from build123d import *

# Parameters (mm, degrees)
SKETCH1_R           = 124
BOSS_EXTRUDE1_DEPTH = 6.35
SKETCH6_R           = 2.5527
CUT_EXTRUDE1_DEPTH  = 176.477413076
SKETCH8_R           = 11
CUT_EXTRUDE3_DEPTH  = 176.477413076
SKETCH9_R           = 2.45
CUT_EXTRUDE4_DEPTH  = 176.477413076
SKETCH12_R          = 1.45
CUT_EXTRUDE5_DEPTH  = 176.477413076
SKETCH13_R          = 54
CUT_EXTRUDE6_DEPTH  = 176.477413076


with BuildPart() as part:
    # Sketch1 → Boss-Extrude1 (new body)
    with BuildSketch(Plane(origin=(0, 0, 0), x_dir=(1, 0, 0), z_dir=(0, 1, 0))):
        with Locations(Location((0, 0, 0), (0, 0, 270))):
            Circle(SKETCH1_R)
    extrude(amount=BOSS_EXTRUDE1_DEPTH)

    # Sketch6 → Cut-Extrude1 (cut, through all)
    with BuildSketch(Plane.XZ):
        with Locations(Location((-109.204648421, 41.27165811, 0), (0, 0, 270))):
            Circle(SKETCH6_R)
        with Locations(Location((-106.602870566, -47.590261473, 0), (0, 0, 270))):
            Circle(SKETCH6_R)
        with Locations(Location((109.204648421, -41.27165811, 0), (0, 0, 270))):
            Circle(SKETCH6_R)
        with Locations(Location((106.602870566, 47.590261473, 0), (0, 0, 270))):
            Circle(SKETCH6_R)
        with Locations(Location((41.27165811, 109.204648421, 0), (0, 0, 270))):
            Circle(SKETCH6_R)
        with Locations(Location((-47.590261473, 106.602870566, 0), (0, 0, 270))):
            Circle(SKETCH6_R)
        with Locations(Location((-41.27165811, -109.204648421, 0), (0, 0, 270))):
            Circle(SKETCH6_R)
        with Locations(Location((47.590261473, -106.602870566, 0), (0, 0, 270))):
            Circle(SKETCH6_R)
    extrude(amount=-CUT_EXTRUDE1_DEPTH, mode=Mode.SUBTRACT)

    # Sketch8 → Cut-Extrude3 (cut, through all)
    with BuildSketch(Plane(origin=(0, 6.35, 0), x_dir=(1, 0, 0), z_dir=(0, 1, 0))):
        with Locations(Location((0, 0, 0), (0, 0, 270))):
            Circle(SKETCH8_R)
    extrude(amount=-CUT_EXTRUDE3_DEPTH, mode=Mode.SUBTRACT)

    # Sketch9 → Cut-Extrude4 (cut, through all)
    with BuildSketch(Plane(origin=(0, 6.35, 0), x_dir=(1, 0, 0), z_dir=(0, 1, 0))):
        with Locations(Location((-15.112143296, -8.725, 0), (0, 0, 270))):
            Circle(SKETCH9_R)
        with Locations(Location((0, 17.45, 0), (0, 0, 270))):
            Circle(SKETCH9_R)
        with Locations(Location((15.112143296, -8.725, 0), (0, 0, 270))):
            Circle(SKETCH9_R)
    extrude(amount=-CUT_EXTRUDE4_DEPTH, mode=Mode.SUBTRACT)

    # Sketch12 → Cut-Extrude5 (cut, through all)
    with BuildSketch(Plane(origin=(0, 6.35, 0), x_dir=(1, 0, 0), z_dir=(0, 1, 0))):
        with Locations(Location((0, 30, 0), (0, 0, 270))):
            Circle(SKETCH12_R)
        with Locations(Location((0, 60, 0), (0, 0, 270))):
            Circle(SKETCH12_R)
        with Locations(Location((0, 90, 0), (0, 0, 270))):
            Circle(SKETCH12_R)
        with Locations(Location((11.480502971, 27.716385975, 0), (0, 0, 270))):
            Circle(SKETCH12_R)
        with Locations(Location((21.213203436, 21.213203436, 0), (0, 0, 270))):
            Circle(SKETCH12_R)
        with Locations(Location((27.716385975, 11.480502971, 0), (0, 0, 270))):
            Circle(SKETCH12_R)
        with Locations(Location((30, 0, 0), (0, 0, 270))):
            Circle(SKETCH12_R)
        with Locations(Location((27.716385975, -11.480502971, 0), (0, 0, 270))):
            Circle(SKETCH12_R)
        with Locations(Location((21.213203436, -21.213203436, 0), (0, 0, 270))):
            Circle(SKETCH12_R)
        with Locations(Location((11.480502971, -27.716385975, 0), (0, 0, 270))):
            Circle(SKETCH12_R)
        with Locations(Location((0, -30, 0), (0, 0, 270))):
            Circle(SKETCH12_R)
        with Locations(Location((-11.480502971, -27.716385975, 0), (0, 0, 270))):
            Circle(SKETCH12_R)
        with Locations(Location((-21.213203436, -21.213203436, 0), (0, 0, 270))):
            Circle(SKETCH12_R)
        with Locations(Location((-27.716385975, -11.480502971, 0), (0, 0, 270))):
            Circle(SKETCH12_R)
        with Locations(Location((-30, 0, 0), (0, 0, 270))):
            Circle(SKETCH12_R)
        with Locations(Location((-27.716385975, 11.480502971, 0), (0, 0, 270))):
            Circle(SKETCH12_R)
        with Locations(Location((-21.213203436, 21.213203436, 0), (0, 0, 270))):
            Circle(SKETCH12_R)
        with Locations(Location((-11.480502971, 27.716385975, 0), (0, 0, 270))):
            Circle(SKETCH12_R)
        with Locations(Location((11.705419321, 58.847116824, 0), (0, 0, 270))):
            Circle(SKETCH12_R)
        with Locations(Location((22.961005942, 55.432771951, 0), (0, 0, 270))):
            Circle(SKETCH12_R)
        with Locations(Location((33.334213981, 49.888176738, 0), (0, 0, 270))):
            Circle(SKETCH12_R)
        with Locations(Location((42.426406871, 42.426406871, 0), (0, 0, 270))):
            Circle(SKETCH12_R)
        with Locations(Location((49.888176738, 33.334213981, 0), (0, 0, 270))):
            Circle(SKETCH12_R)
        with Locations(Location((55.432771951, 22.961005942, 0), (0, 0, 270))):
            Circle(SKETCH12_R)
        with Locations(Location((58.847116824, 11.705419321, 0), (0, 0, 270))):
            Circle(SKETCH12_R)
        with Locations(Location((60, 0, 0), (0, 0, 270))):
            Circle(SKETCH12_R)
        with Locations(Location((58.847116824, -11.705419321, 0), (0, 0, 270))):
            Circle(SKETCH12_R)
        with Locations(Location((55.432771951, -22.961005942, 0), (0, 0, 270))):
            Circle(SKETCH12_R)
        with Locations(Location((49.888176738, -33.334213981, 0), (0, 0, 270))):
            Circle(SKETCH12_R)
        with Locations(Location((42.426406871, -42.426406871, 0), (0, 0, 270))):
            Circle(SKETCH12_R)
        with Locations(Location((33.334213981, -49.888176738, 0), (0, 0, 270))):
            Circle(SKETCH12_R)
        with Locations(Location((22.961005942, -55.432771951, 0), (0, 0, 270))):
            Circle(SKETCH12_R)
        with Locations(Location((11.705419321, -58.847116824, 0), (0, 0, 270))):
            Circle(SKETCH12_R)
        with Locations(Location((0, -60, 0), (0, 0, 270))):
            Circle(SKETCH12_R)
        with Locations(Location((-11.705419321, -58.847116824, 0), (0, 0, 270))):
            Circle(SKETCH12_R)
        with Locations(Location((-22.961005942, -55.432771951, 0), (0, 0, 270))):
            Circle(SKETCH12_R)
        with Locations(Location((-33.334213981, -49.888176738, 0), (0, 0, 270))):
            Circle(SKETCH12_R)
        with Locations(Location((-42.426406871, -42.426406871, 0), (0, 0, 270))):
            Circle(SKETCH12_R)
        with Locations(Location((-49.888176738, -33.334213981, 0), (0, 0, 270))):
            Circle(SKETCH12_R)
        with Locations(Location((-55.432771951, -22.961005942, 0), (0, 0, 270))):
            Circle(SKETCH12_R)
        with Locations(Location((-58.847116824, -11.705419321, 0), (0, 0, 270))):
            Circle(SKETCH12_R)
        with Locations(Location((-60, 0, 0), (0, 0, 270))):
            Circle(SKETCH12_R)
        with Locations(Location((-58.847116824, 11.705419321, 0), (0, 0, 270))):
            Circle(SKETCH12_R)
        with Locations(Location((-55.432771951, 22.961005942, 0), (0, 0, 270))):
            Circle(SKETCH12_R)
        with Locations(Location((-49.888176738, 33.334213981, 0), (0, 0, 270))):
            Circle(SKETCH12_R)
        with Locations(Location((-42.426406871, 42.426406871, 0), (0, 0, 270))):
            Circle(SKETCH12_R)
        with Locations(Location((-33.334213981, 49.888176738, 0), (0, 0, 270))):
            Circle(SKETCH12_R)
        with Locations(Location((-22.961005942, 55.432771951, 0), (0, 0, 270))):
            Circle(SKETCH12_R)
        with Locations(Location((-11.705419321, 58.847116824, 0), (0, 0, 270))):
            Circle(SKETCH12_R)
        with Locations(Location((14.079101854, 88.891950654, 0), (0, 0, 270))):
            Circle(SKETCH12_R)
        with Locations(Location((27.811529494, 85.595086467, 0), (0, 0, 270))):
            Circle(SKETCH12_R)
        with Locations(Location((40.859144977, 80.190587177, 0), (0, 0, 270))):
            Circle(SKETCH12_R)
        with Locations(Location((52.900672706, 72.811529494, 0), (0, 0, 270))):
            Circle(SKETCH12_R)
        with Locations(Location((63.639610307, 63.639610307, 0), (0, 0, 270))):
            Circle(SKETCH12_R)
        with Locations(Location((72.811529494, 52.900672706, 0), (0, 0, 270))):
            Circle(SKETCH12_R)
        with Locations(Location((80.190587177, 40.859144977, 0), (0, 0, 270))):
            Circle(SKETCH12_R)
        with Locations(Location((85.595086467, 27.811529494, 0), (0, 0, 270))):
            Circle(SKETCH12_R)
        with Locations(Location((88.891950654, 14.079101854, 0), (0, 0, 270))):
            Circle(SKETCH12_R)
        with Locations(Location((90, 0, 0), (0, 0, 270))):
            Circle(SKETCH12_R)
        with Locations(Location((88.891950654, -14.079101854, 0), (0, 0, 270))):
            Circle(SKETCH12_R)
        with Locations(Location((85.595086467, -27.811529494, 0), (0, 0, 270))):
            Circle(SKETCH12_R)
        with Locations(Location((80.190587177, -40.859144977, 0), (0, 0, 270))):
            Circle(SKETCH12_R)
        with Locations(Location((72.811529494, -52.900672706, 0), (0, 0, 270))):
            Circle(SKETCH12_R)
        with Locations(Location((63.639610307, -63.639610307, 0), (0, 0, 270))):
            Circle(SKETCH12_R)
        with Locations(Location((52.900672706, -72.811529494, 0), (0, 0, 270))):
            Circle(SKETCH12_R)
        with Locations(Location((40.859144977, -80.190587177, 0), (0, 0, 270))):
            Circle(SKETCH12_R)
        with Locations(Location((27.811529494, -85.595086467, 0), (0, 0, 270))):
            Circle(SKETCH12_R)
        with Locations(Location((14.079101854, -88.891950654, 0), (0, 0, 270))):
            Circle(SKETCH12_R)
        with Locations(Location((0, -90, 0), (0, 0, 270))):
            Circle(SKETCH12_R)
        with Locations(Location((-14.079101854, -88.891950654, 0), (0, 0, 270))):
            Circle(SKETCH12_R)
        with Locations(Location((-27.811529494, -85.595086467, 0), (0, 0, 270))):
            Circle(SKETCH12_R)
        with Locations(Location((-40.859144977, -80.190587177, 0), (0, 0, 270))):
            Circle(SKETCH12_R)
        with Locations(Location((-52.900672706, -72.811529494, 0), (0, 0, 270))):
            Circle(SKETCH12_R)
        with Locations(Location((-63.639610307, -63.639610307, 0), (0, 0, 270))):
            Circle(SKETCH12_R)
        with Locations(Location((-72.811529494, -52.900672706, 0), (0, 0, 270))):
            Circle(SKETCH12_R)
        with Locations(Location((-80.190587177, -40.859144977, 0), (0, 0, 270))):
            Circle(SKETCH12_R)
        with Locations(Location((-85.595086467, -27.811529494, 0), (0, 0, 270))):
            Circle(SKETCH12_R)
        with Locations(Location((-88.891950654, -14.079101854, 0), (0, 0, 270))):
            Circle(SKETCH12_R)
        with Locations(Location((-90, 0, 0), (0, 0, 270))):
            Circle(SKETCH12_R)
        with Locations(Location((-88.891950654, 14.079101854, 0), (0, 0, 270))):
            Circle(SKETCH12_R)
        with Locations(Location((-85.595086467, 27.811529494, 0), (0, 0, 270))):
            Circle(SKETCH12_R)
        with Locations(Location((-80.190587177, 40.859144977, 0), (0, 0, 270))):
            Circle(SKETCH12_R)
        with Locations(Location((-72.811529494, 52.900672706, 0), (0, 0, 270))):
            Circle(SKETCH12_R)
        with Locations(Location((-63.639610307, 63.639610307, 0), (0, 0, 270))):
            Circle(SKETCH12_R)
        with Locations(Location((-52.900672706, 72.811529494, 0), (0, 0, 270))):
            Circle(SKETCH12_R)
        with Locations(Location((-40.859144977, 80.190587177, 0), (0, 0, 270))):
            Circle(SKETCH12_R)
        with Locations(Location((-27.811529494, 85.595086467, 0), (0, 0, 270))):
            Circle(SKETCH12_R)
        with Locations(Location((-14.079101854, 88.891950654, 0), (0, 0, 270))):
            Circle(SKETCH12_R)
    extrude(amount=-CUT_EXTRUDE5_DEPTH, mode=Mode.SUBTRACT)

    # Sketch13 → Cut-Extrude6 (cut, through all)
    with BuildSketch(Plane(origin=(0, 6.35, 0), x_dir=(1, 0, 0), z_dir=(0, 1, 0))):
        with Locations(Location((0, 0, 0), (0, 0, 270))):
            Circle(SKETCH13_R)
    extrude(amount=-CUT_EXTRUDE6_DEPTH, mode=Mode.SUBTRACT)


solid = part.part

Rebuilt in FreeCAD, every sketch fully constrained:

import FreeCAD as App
import Part
import Sketcher
Q = App.Units.Quantity

doc = App.newDocument("Part")
body = doc.addObject("PartDesign::Body", "Body")

sketch1 = body.newObject("Sketcher::SketchObject", "Sketch")
sketch1.AttachmentSupport = (doc.getObject("XZ_Plane"), [""])
sketch1.MapMode = "FlatFace"
sketch1.addGeometry(Part.Circle(App.Vector(0, 0, 0), App.Vector(0, 0, 1), 124), False)
sketch1.addConstraint(Sketcher.Constraint("Coincident", 0, 3, -1, 1))
sketch1.addConstraint(Sketcher.Constraint("Diameter", 0, Q("248 mm")))
pad1 = body.newObject("PartDesign::Pad", "Pad")
pad1.Profile = sketch1
pad1.Length = 6.35
pad1.Reversed = True

sketch2 = body.newObject("Sketcher::SketchObject", "Sketch001")
sketch2.AttachmentSupport = (doc.getObject("XZ_Plane"), [""])
sketch2.MapMode = "FlatFace"
sketch2.addGeometry(Part.Circle(App.Vector(-109.2, 41.3, 0), App.Vector(0, 0, 1), 2.6), False)
sketch2.addGeometry(Part.Circle(App.Vector(-106.6, -47.6, 0), App.Vector(0, 0, 1), 2.6), False)
sketch2.addGeometry(Part.Circle(App.Vector(109.2, -41.3, 0), App.Vector(0, 0, 1), 2.6), False)
sketch2.addGeometry(Part.Circle(App.Vector(106.6, 47.6, 0), App.Vector(0, 0, 1), 2.6), False)
sketch2.addGeometry(Part.Circle(App.Vector(41.3, 109.2, 0), App.Vector(0, 0, 1), 2.6), False)
sketch2.addGeometry(Part.Circle(App.Vector(-47.6, 106.6, 0), App.Vector(0, 0, 1), 2.6), False)
sketch2.addGeometry(Part.Circle(App.Vector(-41.3, -109.2, 0), App.Vector(0, 0, 1), 2.6), False)
sketch2.addGeometry(Part.Circle(App.Vector(47.6, -106.6, 0), App.Vector(0, 0, 1), 2.6), False)
sketch2.addConstraint(Sketcher.Constraint("Equal", 0, 1))
sketch2.addConstraint(Sketcher.Constraint("Equal", 1, 2))
sketch2.addConstraint(Sketcher.Constraint("Equal", 2, 3))
sketch2.addConstraint(Sketcher.Constraint("Equal", 3, 4))
sketch2.addConstraint(Sketcher.Constraint("Equal", 4, 5))
sketch2.addConstraint(Sketcher.Constraint("Equal", 5, 6))
sketch2.addConstraint(Sketcher.Constraint("Equal", 6, 7))
sketch2.addConstraint(Sketcher.Constraint("Symmetric", 0, 3, 2, 3, -1, 1))
sketch2.addConstraint(Sketcher.Constraint("Symmetric", 1, 3, 3, 3, -1, 1))
sketch2.addConstraint(Sketcher.Constraint("Symmetric", 4, 3, 6, 3, -1, 1))
sketch2.addConstraint(Sketcher.Constraint("Symmetric", 5, 3, 7, 3, -1, 1))
sketch2.addConstraint(Sketcher.Constraint("Diameter", 0, Q("5.1054 mm")))
sketch2.addConstraint(Sketcher.Constraint("DistanceX", 0, 3, -1, 1, Q("109.204648 mm")))
sketch2.addConstraint(Sketcher.Constraint("DistanceY", -1, 1, 0, 3, Q("41.271658 mm")))
sketch2.addConstraint(Sketcher.Constraint("DistanceX", 1, 3, -1, 1, Q("106.602871 mm")))
sketch2.addConstraint(Sketcher.Constraint("DistanceY", 1, 3, -1, 1, Q("47.590261 mm")))
sketch2.addConstraint(Sketcher.Constraint("DistanceX", -1, 1, 4, 3, Q("41.271658 mm")))
sketch2.addConstraint(Sketcher.Constraint("DistanceY", -1, 1, 4, 3, Q("109.204648 mm")))
sketch2.addConstraint(Sketcher.Constraint("DistanceX", 5, 3, -1, 1, Q("47.590261 mm")))
sketch2.addConstraint(Sketcher.Constraint("DistanceY", -1, 1, 5, 3, Q("106.602871 mm")))
pocket1 = body.newObject("PartDesign::Pocket", "Pocket")
pocket1.Profile = sketch2
pocket1.Type = "ThroughAll"

sketch3 = body.newObject("Sketcher::SketchObject", "Sketch002")
sketch3.AttachmentSupport = (doc.getObject("XZ_Plane"), [""])
sketch3.MapMode = "FlatFace"
sketch3.AttachmentOffset = App.Placement(App.Vector(0, 0, -6.35), App.Rotation())
sketch3.addGeometry(Part.Circle(App.Vector(0, 0, 0), App.Vector(0, 0, 1), 11), False)
sketch3.addConstraint(Sketcher.Constraint("Coincident", 0, 3, -1, 1))
sketch3.addConstraint(Sketcher.Constraint("Diameter", 0, Q("22 mm")))
pocket2 = body.newObject("PartDesign::Pocket", "Pocket001")
pocket2.Profile = sketch3
pocket2.Type = "ThroughAll"
pocket2.Reversed = True

sketch4 = body.newObject("Sketcher::SketchObject", "Sketch003")
sketch4.AttachmentSupport = (doc.getObject("XZ_Plane"), [""])
sketch4.MapMode = "FlatFace"
sketch4.AttachmentOffset = App.Placement(App.Vector(0, 0, -6.35), App.Rotation())
sketch4.addGeometry(Part.Circle(App.Vector(-15.1, 8.7, 0), App.Vector(0, 0, 1), 2.5), False)
sketch4.addGeometry(Part.Circle(App.Vector(0, -17.4, 0), App.Vector(0, 0, 1), 2.5), False)
sketch4.addGeometry(Part.Circle(App.Vector(15.1, 8.7, 0), App.Vector(0, 0, 1), 2.5), False)
sketch4.addConstraint(Sketcher.Constraint("Equal", 0, 1))
sketch4.addConstraint(Sketcher.Constraint("Equal", 1, 2))
sketch4.addConstraint(Sketcher.Constraint("Symmetric", 0, 3, 2, 3, -2))
sketch4.addConstraint(Sketcher.Constraint("PointOnObject", 1, 3, -2))
sketch4.addConstraint(Sketcher.Constraint("Diameter", 0, Q("4.9 mm")))
sketch4.addConstraint(Sketcher.Constraint("DistanceY", 1, 3, -1, 1, Q("17.45 mm")))
sketch4.addConstraint(Sketcher.Constraint("DistanceY", -1, 1, 0, 3, Q("8.725 mm")))
sketch4.addConstraint(Sketcher.Constraint("DistanceX", 0, 3, -1, 1, Q("15.112143 mm")))
pocket3 = body.newObject("PartDesign::Pocket", "Pocket002")
pocket3.Profile = sketch4
pocket3.Type = "ThroughAll"
pocket3.Reversed = True

sketch5 = body.newObject("Sketcher::SketchObject", "Sketch004")
sketch5.AttachmentSupport = (doc.getObject("XZ_Plane"), [""])
sketch5.MapMode = "FlatFace"
sketch5.AttachmentOffset = App.Placement(App.Vector(0, 0, -6.35), App.Rotation())
sketch5.addGeometry(Part.Circle(App.Vector(0, -30, 0), App.Vector(0, 0, 1), 1.4), False)
sketch5.addGeometry(Part.Circle(App.Vector(0, -60, 0), App.Vector(0, 0, 1), 1.4), False)
sketch5.addGeometry(Part.Circle(App.Vector(0, -90, 0), App.Vector(0, 0, 1), 1.4), False)
sketch5.addGeometry(Part.Circle(App.Vector(11.5, -27.7, 0), App.Vector(0, 0, 1), 1.4), False)
sketch5.addGeometry(Part.Circle(App.Vector(21.2, -21.2, 0), App.Vector(0, 0, 1), 1.4), False)
sketch5.addGeometry(Part.Circle(App.Vector(27.7, -11.5, 0), App.Vector(0, 0, 1), 1.4), False)
sketch5.addGeometry(Part.Circle(App.Vector(30, 0, 0), App.Vector(0, 0, 1), 1.4), False)
sketch5.addGeometry(Part.Circle(App.Vector(27.7, 11.5, 0), App.Vector(0, 0, 1), 1.4), False)
sketch5.addGeometry(Part.Circle(App.Vector(21.2, 21.2, 0), App.Vector(0, 0, 1), 1.4), False)
sketch5.addGeometry(Part.Circle(App.Vector(11.5, 27.7, 0), App.Vector(0, 0, 1), 1.4), False)
sketch5.addGeometry(Part.Circle(App.Vector(0, 30, 0), App.Vector(0, 0, 1), 1.4), False)
sketch5.addGeometry(Part.Circle(App.Vector(-11.5, 27.7, 0), App.Vector(0, 0, 1), 1.4), False)
sketch5.addGeometry(Part.Circle(App.Vector(-21.2, 21.2, 0), App.Vector(0, 0, 1), 1.4), False)
sketch5.addGeometry(Part.Circle(App.Vector(-27.7, 11.5, 0), App.Vector(0, 0, 1), 1.4), False)
sketch5.addGeometry(Part.Circle(App.Vector(-30, 0, 0), App.Vector(0, 0, 1), 1.4), False)
sketch5.addGeometry(Part.Circle(App.Vector(-27.7, -11.5, 0), App.Vector(0, 0, 1), 1.4), False)
sketch5.addGeometry(Part.Circle(App.Vector(-21.2, -21.2, 0), App.Vector(0, 0, 1), 1.4), False)
sketch5.addGeometry(Part.Circle(App.Vector(-11.5, -27.7, 0), App.Vector(0, 0, 1), 1.4), False)
sketch5.addGeometry(Part.Circle(App.Vector(11.7, -58.8, 0), App.Vector(0, 0, 1), 1.4), False)
sketch5.addGeometry(Part.Circle(App.Vector(23, -55.4, 0), App.Vector(0, 0, 1), 1.4), False)
sketch5.addGeometry(Part.Circle(App.Vector(33.3, -49.9, 0), App.Vector(0, 0, 1), 1.4), False)
sketch5.addGeometry(Part.Circle(App.Vector(42.4, -42.4, 0), App.Vector(0, 0, 1), 1.4), False)
sketch5.addGeometry(Part.Circle(App.Vector(49.9, -33.3, 0), App.Vector(0, 0, 1), 1.4), False)
sketch5.addGeometry(Part.Circle(App.Vector(55.4, -23, 0), App.Vector(0, 0, 1), 1.4), False)
sketch5.addGeometry(Part.Circle(App.Vector(58.8, -11.7, 0), App.Vector(0, 0, 1), 1.4), False)
sketch5.addGeometry(Part.Circle(App.Vector(60, 0, 0), App.Vector(0, 0, 1), 1.4), False)
sketch5.addGeometry(Part.Circle(App.Vector(58.8, 11.7, 0), App.Vector(0, 0, 1), 1.4), False)
sketch5.addGeometry(Part.Circle(App.Vector(55.4, 23, 0), App.Vector(0, 0, 1), 1.4), False)
sketch5.addGeometry(Part.Circle(App.Vector(49.9, 33.3, 0), App.Vector(0, 0, 1), 1.4), False)
sketch5.addGeometry(Part.Circle(App.Vector(42.4, 42.4, 0), App.Vector(0, 0, 1), 1.4), False)
sketch5.addGeometry(Part.Circle(App.Vector(33.3, 49.9, 0), App.Vector(0, 0, 1), 1.4), False)
sketch5.addGeometry(Part.Circle(App.Vector(23, 55.4, 0), App.Vector(0, 0, 1), 1.4), False)
sketch5.addGeometry(Part.Circle(App.Vector(11.7, 58.8, 0), App.Vector(0, 0, 1), 1.4), False)
sketch5.addGeometry(Part.Circle(App.Vector(0, 60, 0), App.Vector(0, 0, 1), 1.4), False)
sketch5.addGeometry(Part.Circle(App.Vector(-11.7, 58.8, 0), App.Vector(0, 0, 1), 1.4), False)
sketch5.addGeometry(Part.Circle(App.Vector(-23, 55.4, 0), App.Vector(0, 0, 1), 1.4), False)
sketch5.addGeometry(Part.Circle(App.Vector(-33.3, 49.9, 0), App.Vector(0, 0, 1), 1.4), False)
sketch5.addGeometry(Part.Circle(App.Vector(-42.4, 42.4, 0), App.Vector(0, 0, 1), 1.4), False)
sketch5.addGeometry(Part.Circle(App.Vector(-49.9, 33.3, 0), App.Vector(0, 0, 1), 1.4), False)
sketch5.addGeometry(Part.Circle(App.Vector(-55.4, 23, 0), App.Vector(0, 0, 1), 1.4), False)
sketch5.addGeometry(Part.Circle(App.Vector(-58.8, 11.7, 0), App.Vector(0, 0, 1), 1.4), False)
sketch5.addGeometry(Part.Circle(App.Vector(-60, 0, 0), App.Vector(0, 0, 1), 1.4), False)
sketch5.addGeometry(Part.Circle(App.Vector(-58.8, -11.7, 0), App.Vector(0, 0, 1), 1.4), False)
sketch5.addGeometry(Part.Circle(App.Vector(-55.4, -23, 0), App.Vector(0, 0, 1), 1.4), False)
sketch5.addGeometry(Part.Circle(App.Vector(-49.9, -33.3, 0), App.Vector(0, 0, 1), 1.4), False)
sketch5.addGeometry(Part.Circle(App.Vector(-42.4, -42.4, 0), App.Vector(0, 0, 1), 1.4), False)
sketch5.addGeometry(Part.Circle(App.Vector(-33.3, -49.9, 0), App.Vector(0, 0, 1), 1.4), False)
sketch5.addGeometry(Part.Circle(App.Vector(-23, -55.4, 0), App.Vector(0, 0, 1), 1.4), False)
sketch5.addGeometry(Part.Circle(App.Vector(-11.7, -58.8, 0), App.Vector(0, 0, 1), 1.4), False)
sketch5.addGeometry(Part.Circle(App.Vector(14.1, -88.9, 0), App.Vector(0, 0, 1), 1.4), False)
sketch5.addGeometry(Part.Circle(App.Vector(27.8, -85.6, 0), App.Vector(0, 0, 1), 1.4), False)
sketch5.addGeometry(Part.Circle(App.Vector(40.9, -80.2, 0), App.Vector(0, 0, 1), 1.4), False)
sketch5.addGeometry(Part.Circle(App.Vector(52.9, -72.8, 0), App.Vector(0, 0, 1), 1.4), False)
sketch5.addGeometry(Part.Circle(App.Vector(63.6, -63.6, 0), App.Vector(0, 0, 1), 1.4), False)
sketch5.addGeometry(Part.Circle(App.Vector(72.8, -52.9, 0), App.Vector(0, 0, 1), 1.4), False)
sketch5.addGeometry(Part.Circle(App.Vector(80.2, -40.9, 0), App.Vector(0, 0, 1), 1.4), False)
sketch5.addGeometry(Part.Circle(App.Vector(85.6, -27.8, 0), App.Vector(0, 0, 1), 1.4), False)
sketch5.addGeometry(Part.Circle(App.Vector(88.9, -14.1, 0), App.Vector(0, 0, 1), 1.4), False)
sketch5.addGeometry(Part.Circle(App.Vector(90, 0, 0), App.Vector(0, 0, 1), 1.4), False)
sketch5.addGeometry(Part.Circle(App.Vector(88.9, 14.1, 0), App.Vector(0, 0, 1), 1.4), False)
sketch5.addGeometry(Part.Circle(App.Vector(85.6, 27.8, 0), App.Vector(0, 0, 1), 1.4), False)
sketch5.addGeometry(Part.Circle(App.Vector(80.2, 40.9, 0), App.Vector(0, 0, 1), 1.4), False)
sketch5.addGeometry(Part.Circle(App.Vector(72.8, 52.9, 0), App.Vector(0, 0, 1), 1.4), False)
sketch5.addGeometry(Part.Circle(App.Vector(63.6, 63.6, 0), App.Vector(0, 0, 1), 1.4), False)
sketch5.addGeometry(Part.Circle(App.Vector(52.9, 72.8, 0), App.Vector(0, 0, 1), 1.4), False)
sketch5.addGeometry(Part.Circle(App.Vector(40.9, 80.2, 0), App.Vector(0, 0, 1), 1.4), False)
sketch5.addGeometry(Part.Circle(App.Vector(27.8, 85.6, 0), App.Vector(0, 0, 1), 1.4), False)
sketch5.addGeometry(Part.Circle(App.Vector(14.1, 88.9, 0), App.Vector(0, 0, 1), 1.4), False)
sketch5.addGeometry(Part.Circle(App.Vector(0, 90, 0), App.Vector(0, 0, 1), 1.4), False)
sketch5.addGeometry(Part.Circle(App.Vector(-14.1, 88.9, 0), App.Vector(0, 0, 1), 1.4), False)
sketch5.addGeometry(Part.Circle(App.Vector(-27.8, 85.6, 0), App.Vector(0, 0, 1), 1.4), False)
sketch5.addGeometry(Part.Circle(App.Vector(-40.9, 80.2, 0), App.Vector(0, 0, 1), 1.4), False)
sketch5.addGeometry(Part.Circle(App.Vector(-52.9, 72.8, 0), App.Vector(0, 0, 1), 1.4), False)
sketch5.addGeometry(Part.Circle(App.Vector(-63.6, 63.6, 0), App.Vector(0, 0, 1), 1.4), False)
sketch5.addGeometry(Part.Circle(App.Vector(-72.8, 52.9, 0), App.Vector(0, 0, 1), 1.4), False)
sketch5.addGeometry(Part.Circle(App.Vector(-80.2, 40.9, 0), App.Vector(0, 0, 1), 1.4), False)
sketch5.addGeometry(Part.Circle(App.Vector(-85.6, 27.8, 0), App.Vector(0, 0, 1), 1.4), False)
sketch5.addGeometry(Part.Circle(App.Vector(-88.9, 14.1, 0), App.Vector(0, 0, 1), 1.4), False)
sketch5.addGeometry(Part.Circle(App.Vector(-90, 0, 0), App.Vector(0, 0, 1), 1.4), False)
sketch5.addGeometry(Part.Circle(App.Vector(-88.9, -14.1, 0), App.Vector(0, 0, 1), 1.4), False)
sketch5.addGeometry(Part.Circle(App.Vector(-85.6, -27.8, 0), App.Vector(0, 0, 1), 1.4), False)
sketch5.addGeometry(Part.Circle(App.Vector(-80.2, -40.9, 0), App.Vector(0, 0, 1), 1.4), False)
sketch5.addGeometry(Part.Circle(App.Vector(-72.8, -52.9, 0), App.Vector(0, 0, 1), 1.4), False)
sketch5.addGeometry(Part.Circle(App.Vector(-63.6, -63.6, 0), App.Vector(0, 0, 1), 1.4), False)
sketch5.addGeometry(Part.Circle(App.Vector(-52.9, -72.8, 0), App.Vector(0, 0, 1), 1.4), False)
sketch5.addGeometry(Part.Circle(App.Vector(-40.9, -80.2, 0), App.Vector(0, 0, 1), 1.4), False)
sketch5.addGeometry(Part.Circle(App.Vector(-27.8, -85.6, 0), App.Vector(0, 0, 1), 1.4), False)
sketch5.addGeometry(Part.Circle(App.Vector(-14.1, -88.9, 0), App.Vector(0, 0, 1), 1.4), False)
sketch5.addConstraint(Sketcher.Constraint("Equal", 0, 1))
sketch5.addConstraint(Sketcher.Constraint("Equal", 1, 2))
sketch5.addConstraint(Sketcher.Constraint("Equal", 2, 3))
sketch5.addConstraint(Sketcher.Constraint("Equal", 3, 4))
sketch5.addConstraint(Sketcher.Constraint("Equal", 4, 5))
sketch5.addConstraint(Sketcher.Constraint("Equal", 5, 6))
sketch5.addConstraint(Sketcher.Constraint("Equal", 6, 7))
sketch5.addConstraint(Sketcher.Constraint("Equal", 7, 8))
sketch5.addConstraint(Sketcher.Constraint("Equal", 8, 9))
sketch5.addConstraint(Sketcher.Constraint("Equal", 9, 10))
sketch5.addConstraint(Sketcher.Constraint("Equal", 10, 11))
sketch5.addConstraint(Sketcher.Constraint("Equal", 11, 12))
sketch5.addConstraint(Sketcher.Constraint("Equal", 12, 13))
sketch5.addConstraint(Sketcher.Constraint("Equal", 13, 14))
sketch5.addConstraint(Sketcher.Constraint("Equal", 14, 15))
sketch5.addConstraint(Sketcher.Constraint("Equal", 15, 16))
sketch5.addConstraint(Sketcher.Constraint("Equal", 16, 17))
sketch5.addConstraint(Sketcher.Constraint("Equal", 17, 18))
sketch5.addConstraint(Sketcher.Constraint("Equal", 18, 19))
sketch5.addConstraint(Sketcher.Constraint("Equal", 19, 20))
sketch5.addConstraint(Sketcher.Constraint("Equal", 20, 21))
sketch5.addConstraint(Sketcher.Constraint("Equal", 21, 22))
sketch5.addConstraint(Sketcher.Constraint("Equal", 22, 23))
sketch5.addConstraint(Sketcher.Constraint("Equal", 23, 24))
sketch5.addConstraint(Sketcher.Constraint("Equal", 24, 25))
sketch5.addConstraint(Sketcher.Constraint("Equal", 25, 26))
sketch5.addConstraint(Sketcher.Constraint("Equal", 26, 27))
sketch5.addConstraint(Sketcher.Constraint("Equal", 27, 28))
sketch5.addConstraint(Sketcher.Constraint("Equal", 28, 29))
sketch5.addConstraint(Sketcher.Constraint("Equal", 29, 30))
sketch5.addConstraint(Sketcher.Constraint("Equal", 30, 31))
sketch5.addConstraint(Sketcher.Constraint("Equal", 31, 32))
sketch5.addConstraint(Sketcher.Constraint("Equal", 32, 33))
sketch5.addConstraint(Sketcher.Constraint("Equal", 33, 34))
sketch5.addConstraint(Sketcher.Constraint("Equal", 34, 35))
sketch5.addConstraint(Sketcher.Constraint("Equal", 35, 36))
sketch5.addConstraint(Sketcher.Constraint("Equal", 36, 37))
sketch5.addConstraint(Sketcher.Constraint("Equal", 37, 38))
sketch5.addConstraint(Sketcher.Constraint("Equal", 38, 39))
sketch5.addConstraint(Sketcher.Constraint("Equal", 39, 40))
sketch5.addConstraint(Sketcher.Constraint("Equal", 40, 41))
sketch5.addConstraint(Sketcher.Constraint("Equal", 41, 42))
sketch5.addConstraint(Sketcher.Constraint("Equal", 42, 43))
sketch5.addConstraint(Sketcher.Constraint("Equal", 43, 44))
sketch5.addConstraint(Sketcher.Constraint("Equal", 44, 45))
sketch5.addConstraint(Sketcher.Constraint("Equal", 45, 46))
sketch5.addConstraint(Sketcher.Constraint("Equal", 46, 47))
sketch5.addConstraint(Sketcher.Constraint("Equal", 47, 48))
sketch5.addConstraint(Sketcher.Constraint("Equal", 48, 49))
sketch5.addConstraint(Sketcher.Constraint("Equal", 49, 50))
sketch5.addConstraint(Sketcher.Constraint("Equal", 50, 51))
sketch5.addConstraint(Sketcher.Constraint("Equal", 51, 52))
sketch5.addConstraint(Sketcher.Constraint("Equal", 52, 53))
sketch5.addConstraint(Sketcher.Constraint("Equal", 53, 54))
sketch5.addConstraint(Sketcher.Constraint("Equal", 54, 55))
sketch5.addConstraint(Sketcher.Constraint("Equal", 55, 56))
sketch5.addConstraint(Sketcher.Constraint("Equal", 56, 57))
sketch5.addConstraint(Sketcher.Constraint("Equal", 57, 58))
sketch5.addConstraint(Sketcher.Constraint("Equal", 58, 59))
sketch5.addConstraint(Sketcher.Constraint("Equal", 59, 60))
sketch5.addConstraint(Sketcher.Constraint("Equal", 60, 61))
sketch5.addConstraint(Sketcher.Constraint("Equal", 61, 62))
sketch5.addConstraint(Sketcher.Constraint("Equal", 62, 63))
sketch5.addConstraint(Sketcher.Constraint("Equal", 63, 64))
sketch5.addConstraint(Sketcher.Constraint("Equal", 64, 65))
sketch5.addConstraint(Sketcher.Constraint("Equal", 65, 66))
sketch5.addConstraint(Sketcher.Constraint("Equal", 66, 67))
sketch5.addConstraint(Sketcher.Constraint("Equal", 67, 68))
sketch5.addConstraint(Sketcher.Constraint("Equal", 68, 69))
sketch5.addConstraint(Sketcher.Constraint("Equal", 69, 70))
sketch5.addConstraint(Sketcher.Constraint("Equal", 70, 71))
sketch5.addConstraint(Sketcher.Constraint("Equal", 71, 72))
sketch5.addConstraint(Sketcher.Constraint("Equal", 72, 73))
sketch5.addConstraint(Sketcher.Constraint("Equal", 73, 74))
sketch5.addConstraint(Sketcher.Constraint("Equal", 74, 75))
sketch5.addConstraint(Sketcher.Constraint("Equal", 75, 76))
sketch5.addConstraint(Sketcher.Constraint("Equal", 76, 77))
sketch5.addConstraint(Sketcher.Constraint("Equal", 77, 78))
sketch5.addConstraint(Sketcher.Constraint("Equal", 78, 79))
sketch5.addConstraint(Sketcher.Constraint("Equal", 79, 80))
sketch5.addConstraint(Sketcher.Constraint("Equal", 80, 81))
sketch5.addConstraint(Sketcher.Constraint("Equal", 81, 82))
sketch5.addConstraint(Sketcher.Constraint("Equal", 82, 83))
sketch5.addConstraint(Sketcher.Constraint("Equal", 83, 84))
sketch5.addConstraint(Sketcher.Constraint("Equal", 84, 85))
sketch5.addConstraint(Sketcher.Constraint("Equal", 85, 86))
sketch5.addConstraint(Sketcher.Constraint("Equal", 86, 87))
sketch5.addConstraint(Sketcher.Constraint("Symmetric", 0, 3, 10, 3, -1, 1))
sketch5.addConstraint(Sketcher.Constraint("Symmetric", 3, 3, 11, 3, -1, 1))
sketch5.addConstraint(Sketcher.Constraint("Symmetric", 4, 3, 12, 3, -1, 1))
sketch5.addConstraint(Sketcher.Constraint("Symmetric", 5, 3, 13, 3, -1, 1))
sketch5.addConstraint(Sketcher.Constraint("Symmetric", 6, 3, 14, 3, -1, 1))
sketch5.addConstraint(Sketcher.Constraint("Symmetric", 7, 3, 15, 3, -1, 1))
sketch5.addConstraint(Sketcher.Constraint("Symmetric", 8, 3, 16, 3, -1, 1))
sketch5.addConstraint(Sketcher.Constraint("Symmetric", 9, 3, 17, 3, -1, 1))
sketch5.addConstraint(Sketcher.Constraint("Symmetric", 1, 3, 33, 3, -1, 1))
sketch5.addConstraint(Sketcher.Constraint("Symmetric", 18, 3, 34, 3, -1, 1))
sketch5.addConstraint(Sketcher.Constraint("Symmetric", 19, 3, 35, 3, -1, 1))
sketch5.addConstraint(Sketcher.Constraint("Symmetric", 20, 3, 36, 3, -1, 1))
sketch5.addConstraint(Sketcher.Constraint("Symmetric", 21, 3, 37, 3, -1, 1))
sketch5.addConstraint(Sketcher.Constraint("Symmetric", 22, 3, 38, 3, -1, 1))
sketch5.addConstraint(Sketcher.Constraint("Symmetric", 23, 3, 39, 3, -1, 1))
sketch5.addConstraint(Sketcher.Constraint("Symmetric", 24, 3, 40, 3, -1, 1))
sketch5.addConstraint(Sketcher.Constraint("Symmetric", 25, 3, 41, 3, -1, 1))
sketch5.addConstraint(Sketcher.Constraint("Symmetric", 26, 3, 42, 3, -1, 1))
sketch5.addConstraint(Sketcher.Constraint("Symmetric", 27, 3, 43, 3, -1, 1))
sketch5.addConstraint(Sketcher.Constraint("Symmetric", 28, 3, 44, 3, -1, 1))
sketch5.addConstraint(Sketcher.Constraint("Symmetric", 29, 3, 45, 3, -1, 1))
sketch5.addConstraint(Sketcher.Constraint("Symmetric", 30, 3, 46, 3, -1, 1))
sketch5.addConstraint(Sketcher.Constraint("Symmetric", 31, 3, 47, 3, -1, 1))
sketch5.addConstraint(Sketcher.Constraint("Symmetric", 32, 3, 48, 3, -1, 1))
sketch5.addConstraint(Sketcher.Constraint("Symmetric", 2, 3, 68, 3, -1, 1))
sketch5.addConstraint(Sketcher.Constraint("Symmetric", 49, 3, 69, 3, -1, 1))
sketch5.addConstraint(Sketcher.Constraint("Symmetric", 50, 3, 70, 3, -1, 1))
sketch5.addConstraint(Sketcher.Constraint("Symmetric", 51, 3, 71, 3, -1, 1))
sketch5.addConstraint(Sketcher.Constraint("Symmetric", 52, 3, 72, 3, -1, 1))
sketch5.addConstraint(Sketcher.Constraint("Symmetric", 53, 3, 73, 3, -1, 1))
sketch5.addConstraint(Sketcher.Constraint("Symmetric", 54, 3, 74, 3, -1, 1))
sketch5.addConstraint(Sketcher.Constraint("Symmetric", 55, 3, 75, 3, -1, 1))
sketch5.addConstraint(Sketcher.Constraint("Symmetric", 56, 3, 76, 3, -1, 1))
sketch5.addConstraint(Sketcher.Constraint("Symmetric", 57, 3, 77, 3, -1, 1))
sketch5.addConstraint(Sketcher.Constraint("Symmetric", 58, 3, 78, 3, -1, 1))
sketch5.addConstraint(Sketcher.Constraint("Symmetric", 59, 3, 79, 3, -1, 1))
sketch5.addConstraint(Sketcher.Constraint("Symmetric", 60, 3, 80, 3, -1, 1))
sketch5.addConstraint(Sketcher.Constraint("Symmetric", 61, 3, 81, 3, -1, 1))
sketch5.addConstraint(Sketcher.Constraint("Symmetric", 62, 3, 82, 3, -1, 1))
sketch5.addConstraint(Sketcher.Constraint("Symmetric", 63, 3, 83, 3, -1, 1))
sketch5.addConstraint(Sketcher.Constraint("Symmetric", 64, 3, 84, 3, -1, 1))
sketch5.addConstraint(Sketcher.Constraint("Symmetric", 65, 3, 85, 3, -1, 1))
sketch5.addConstraint(Sketcher.Constraint("Symmetric", 66, 3, 86, 3, -1, 1))
sketch5.addConstraint(Sketcher.Constraint("Symmetric", 67, 3, 87, 3, -1, 1))
sketch5.addConstraint(Sketcher.Constraint("Symmetric", 9, 3, 11, 3, -2))
sketch5.addConstraint(Sketcher.Constraint("Symmetric", 8, 3, 12, 3, -2))
sketch5.addConstraint(Sketcher.Constraint("Symmetric", 7, 3, 13, 3, -2))
sketch5.addConstraint(Sketcher.Constraint("Symmetric", 32, 3, 34, 3, -2))
sketch5.addConstraint(Sketcher.Constraint("Symmetric", 31, 3, 35, 3, -2))
sketch5.addConstraint(Sketcher.Constraint("Symmetric", 30, 3, 36, 3, -2))
sketch5.addConstraint(Sketcher.Constraint("Symmetric", 29, 3, 37, 3, -2))
sketch5.addConstraint(Sketcher.Constraint("Symmetric", 28, 3, 38, 3, -2))
sketch5.addConstraint(Sketcher.Constraint("Symmetric", 27, 3, 39, 3, -2))
sketch5.addConstraint(Sketcher.Constraint("Symmetric", 26, 3, 40, 3, -2))
sketch5.addConstraint(Sketcher.Constraint("Symmetric", 67, 3, 69, 3, -2))
sketch5.addConstraint(Sketcher.Constraint("Symmetric", 66, 3, 70, 3, -2))
sketch5.addConstraint(Sketcher.Constraint("Symmetric", 65, 3, 71, 3, -2))
sketch5.addConstraint(Sketcher.Constraint("Symmetric", 64, 3, 72, 3, -2))
sketch5.addConstraint(Sketcher.Constraint("Symmetric", 63, 3, 73, 3, -2))
sketch5.addConstraint(Sketcher.Constraint("Symmetric", 62, 3, 74, 3, -2))
sketch5.addConstraint(Sketcher.Constraint("Symmetric", 61, 3, 75, 3, -2))
sketch5.addConstraint(Sketcher.Constraint("Symmetric", 60, 3, 76, 3, -2))
sketch5.addConstraint(Sketcher.Constraint("Symmetric", 59, 3, 77, 3, -2))
sketch5.addConstraint(Sketcher.Constraint("PointOnObject", 0, 3, -2))
sketch5.addConstraint(Sketcher.Constraint("PointOnObject", 1, 3, -2))
sketch5.addConstraint(Sketcher.Constraint("PointOnObject", 2, 3, -2))
sketch5.addConstraint(Sketcher.Constraint("PointOnObject", 6, 3, -1))
sketch5.addConstraint(Sketcher.Constraint("PointOnObject", 25, 3, -1))
sketch5.addConstraint(Sketcher.Constraint("PointOnObject", 58, 3, -1))
sketch5.addConstraint(Sketcher.Constraint("Diameter", 0, Q("2.9 mm")))
sketch5.addConstraint(Sketcher.Constraint("DistanceY", 0, 3, -1, 1, Q("30 mm")))
sketch5.addConstraint(Sketcher.Constraint("DistanceY", 1, 3, -1, 1, Q("60 mm")))
sketch5.addConstraint(Sketcher.Constraint("DistanceY", 2, 3, -1, 1, Q("90 mm")))
sketch5.addConstraint(Sketcher.Constraint("DistanceX", -1, 1, 6, 3, Q("30 mm")))
sketch5.addConstraint(Sketcher.Constraint("DistanceX", -1, 1, 25, 3, Q("60 mm")))
sketch5.addConstraint(Sketcher.Constraint("DistanceX", -1, 1, 58, 3, Q("90 mm")))
sketch5.addConstraint(Sketcher.Constraint("DistanceX", -1, 1, 49, 3, Q("14.079102 mm")))
sketch5.addConstraint(Sketcher.Constraint("DistanceY", 57, 3, -1, 1, Q("14.079102 mm")))
sketch5.addConstraint(Sketcher.Constraint("DistanceX", -1, 1, 18, 3, Q("11.705419 mm")))
sketch5.addConstraint(Sketcher.Constraint("DistanceY", 19, 3, -1, 1, Q("55.432772 mm")))
sketch5.addConstraint(Sketcher.Constraint("DistanceX", -1, 1, 23, 3, Q("55.432772 mm")))
sketch5.addConstraint(Sketcher.Constraint("DistanceY", 24, 3, -1, 1, Q("11.705419 mm")))
sketch5.addConstraint(Sketcher.Constraint("DistanceY", 49, 3, -1, 1, Q("88.891951 mm")))
sketch5.addConstraint(Sketcher.Constraint("DistanceX", -1, 1, 50, 3, Q("27.811529 mm")))
sketch5.addConstraint(Sketcher.Constraint("DistanceY", 52, 3, -1, 1, Q("72.811529 mm")))
sketch5.addConstraint(Sketcher.Constraint("DistanceX", -1, 1, 53, 3, Q("63.63961 mm")))
sketch5.addConstraint(Sketcher.Constraint("DistanceY", 53, 3, -1, 1, Q("63.63961 mm")))
sketch5.addConstraint(Sketcher.Constraint("DistanceX", -1, 1, 54, 3, Q("72.811529 mm")))
sketch5.addConstraint(Sketcher.Constraint("DistanceY", 56, 3, -1, 1, Q("27.811529 mm")))
sketch5.addConstraint(Sketcher.Constraint("DistanceX", -1, 1, 57, 3, Q("88.891951 mm")))
sketch5.addConstraint(Sketcher.Constraint("DistanceX", -1, 1, 3, 3, Q("11.480503 mm")))
sketch5.addConstraint(Sketcher.Constraint("DistanceY", 3, 3, -1, 1, Q("27.716386 mm")))
sketch5.addConstraint(Sketcher.Constraint("DistanceX", -1, 1, 4, 3, Q("21.213203 mm")))
sketch5.addConstraint(Sketcher.Constraint("DistanceY", 4, 3, -1, 1, Q("21.213203 mm")))
sketch5.addConstraint(Sketcher.Constraint("DistanceX", -1, 1, 5, 3, Q("27.716386 mm")))
sketch5.addConstraint(Sketcher.Constraint("DistanceY", 5, 3, -1, 1, Q("11.480503 mm")))
sketch5.addConstraint(Sketcher.Constraint("DistanceY", 18, 3, -1, 1, Q("58.847117 mm")))
sketch5.addConstraint(Sketcher.Constraint("DistanceX", -1, 1, 19, 3, Q("22.961006 mm")))
sketch5.addConstraint(Sketcher.Constraint("DistanceX", -1, 1, 20, 3, Q("33.334214 mm")))
sketch5.addConstraint(Sketcher.Constraint("DistanceY", 20, 3, -1, 1, Q("49.888177 mm")))
sketch5.addConstraint(Sketcher.Constraint("DistanceX", -1, 1, 21, 3, Q("42.426407 mm")))
sketch5.addConstraint(Sketcher.Constraint("DistanceY", 21, 3, -1, 1, Q("42.426407 mm")))
sketch5.addConstraint(Sketcher.Constraint("DistanceX", -1, 1, 22, 3, Q("49.888177 mm")))
sketch5.addConstraint(Sketcher.Constraint("DistanceY", 22, 3, -1, 1, Q("33.334214 mm")))
sketch5.addConstraint(Sketcher.Constraint("DistanceY", 23, 3, -1, 1, Q("22.961006 mm")))
sketch5.addConstraint(Sketcher.Constraint("DistanceX", -1, 1, 24, 3, Q("58.847117 mm")))
sketch5.addConstraint(Sketcher.Constraint("DistanceY", 50, 3, -1, 1, Q("85.595086 mm")))
sketch5.addConstraint(Sketcher.Constraint("DistanceX", -1, 1, 51, 3, Q("40.859145 mm")))
sketch5.addConstraint(Sketcher.Constraint("DistanceY", 51, 3, -1, 1, Q("80.190587 mm")))
sketch5.addConstraint(Sketcher.Constraint("DistanceX", -1, 1, 52, 3, Q("52.900673 mm")))
sketch5.addConstraint(Sketcher.Constraint("DistanceY", 54, 3, -1, 1, Q("52.900673 mm")))
sketch5.addConstraint(Sketcher.Constraint("DistanceX", -1, 1, 55, 3, Q("80.190587 mm")))
sketch5.addConstraint(Sketcher.Constraint("DistanceY", 55, 3, -1, 1, Q("40.859145 mm")))
sketch5.addConstraint(Sketcher.Constraint("DistanceX", -1, 1, 56, 3, Q("85.595086 mm")))
pocket4 = body.newObject("PartDesign::Pocket", "Pocket003")
pocket4.Profile = sketch5
pocket4.Type = "ThroughAll"
pocket4.Reversed = True

sketch6 = body.newObject("Sketcher::SketchObject", "Sketch005")
sketch6.AttachmentSupport = (doc.getObject("XZ_Plane"), [""])
sketch6.MapMode = "FlatFace"
sketch6.AttachmentOffset = App.Placement(App.Vector(0, 0, -6.35), App.Rotation())
sketch6.addGeometry(Part.Circle(App.Vector(0, 0, 0), App.Vector(0, 0, 1), 54), False)
sketch6.addConstraint(Sketcher.Constraint("Coincident", 0, 3, -1, 1))
sketch6.addConstraint(Sketcher.Constraint("Diameter", 0, Q("108 mm")))
pocket5 = body.newObject("PartDesign::Pocket", "Pocket004")
pocket5.Profile = sketch6
pocket5.Type = "ThroughAll"
pocket5.Reversed = True

doc.recompute()
